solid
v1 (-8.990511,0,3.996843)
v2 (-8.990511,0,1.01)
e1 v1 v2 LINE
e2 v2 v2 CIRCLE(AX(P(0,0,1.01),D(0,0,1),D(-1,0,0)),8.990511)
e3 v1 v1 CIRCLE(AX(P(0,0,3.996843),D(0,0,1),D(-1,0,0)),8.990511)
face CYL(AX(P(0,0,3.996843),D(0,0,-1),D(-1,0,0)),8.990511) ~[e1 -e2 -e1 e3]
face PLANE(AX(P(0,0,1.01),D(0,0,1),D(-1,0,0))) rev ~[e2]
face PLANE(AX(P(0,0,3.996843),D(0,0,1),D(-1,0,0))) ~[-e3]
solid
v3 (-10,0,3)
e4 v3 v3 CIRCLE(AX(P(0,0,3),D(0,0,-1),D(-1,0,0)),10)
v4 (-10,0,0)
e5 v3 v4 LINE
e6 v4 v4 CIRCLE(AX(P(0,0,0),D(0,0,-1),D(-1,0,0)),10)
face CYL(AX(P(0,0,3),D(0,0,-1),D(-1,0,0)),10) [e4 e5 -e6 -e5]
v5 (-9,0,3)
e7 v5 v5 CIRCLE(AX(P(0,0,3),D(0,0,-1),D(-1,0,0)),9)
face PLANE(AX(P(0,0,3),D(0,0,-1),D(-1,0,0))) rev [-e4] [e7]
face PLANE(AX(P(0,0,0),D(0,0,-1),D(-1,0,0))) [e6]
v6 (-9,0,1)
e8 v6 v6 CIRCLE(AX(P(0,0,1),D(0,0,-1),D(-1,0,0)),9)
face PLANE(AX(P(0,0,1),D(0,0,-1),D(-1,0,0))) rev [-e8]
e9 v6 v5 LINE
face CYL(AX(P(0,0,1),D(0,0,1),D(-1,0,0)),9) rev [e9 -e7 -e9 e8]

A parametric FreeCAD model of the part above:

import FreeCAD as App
import Part
import Sketcher
from FreeCAD import Vector


def add_polygon(sketch, points):
    """Adds a closed chain of lines whose ends are joined by coincident constraints."""
    first, n = sketch.GeometryCount, len(points)
    for a, b in zip(points, points[1:] + points[:1]):
        sketch.addGeometry(Part.LineSegment(App.Vector(*a, 0), App.Vector(*b, 0)), False)
    for i in range(n):
        sketch.addConstraint(Sketcher.Constraint("Coincident", first + i, 2, first + (i + 1) % n, 1))

doc = App.newDocument("Part")
body = doc.addObject("PartDesign::Body", "Body")

# Sketch on XZ plane
sketch1 = body.newObject("Sketcher::SketchObject", "Sketch")
sketch1.AttachmentSupport = (doc.getObject("XZ_Plane"), [""])
sketch1.MapMode = "FlatFace"
add_polygon(sketch1, [(0, 4), (-9, 4), (-9, 1), (0, 1)])  # lines 0-3
sketch1.addConstraint(Sketcher.Constraint("Horizontal", 0))
sketch1.addConstraint(Sketcher.Constraint("Vertical", 1))
sketch1.addConstraint(Sketcher.Constraint("Horizontal", 2))
sketch1.addConstraint(Sketcher.Constraint("Vertical", 3))
sketch1.addConstraint(Sketcher.Constraint("PointOnObject", 2, 2, -2))
sketch1.addConstraint(Sketcher.Constraint("DistanceY", -1, 1, 1, 2, 1.01))
sketch1.addConstraint(Sketcher.Constraint("DistanceX", 0, 2, 0, 1, 8.990511))
sketch1.addConstraint(Sketcher.Constraint("DistanceY", 1, 2, 1, 1, 2.986843))
revolution = body.newObject("PartDesign::Revolution", "Revolution")
revolution.Profile = sketch1
revolution.ReferenceAxis = (sketch1, ["V_Axis"])
revolution.Angle = 360
body2 = doc.addObject("PartDesign::Body", "Body001")

# Sketch on XZ plane
sketch2 = body2.newObject("Sketcher::SketchObject", "Sketch001")
sketch2.AttachmentSupport = (doc.getObject("XZ_Plane001"), [""])
sketch2.MapMode = "FlatFace"
add_polygon(sketch2, [(-10, 0), (0, 0), (0, 1), (-9, 1), (-9, 3), (-10, 3)])  # lines 0-5
sketch2.addConstraint(Sketcher.Constraint("Horizontal", 0))
sketch2.addConstraint(Sketcher.Constraint("Vertical", 1))
sketch2.addConstraint(Sketcher.Constraint("Horizontal", 2))
sketch2.addConstraint(Sketcher.Constraint("Vertical", 3))
sketch2.addConstraint(Sketcher.Constraint("Horizontal", 4))
sketch2.addConstraint(Sketcher.Constraint("Vertical", 5))
sketch2.addConstraint(Sketcher.Constraint("Coincident", 0, 2, -1, 1))
sketch2.addConstraint(Sketcher.Constraint("Equal", 4, 1))
sketch2.addConstraint(Sketcher.Constraint("DistanceX", 0, 1, 0, 2, 10.0))
sketch2.addConstraint(Sketcher.Constraint("DistanceX", 2, 2, 2, 1, 9.0))
sketch2.addConstraint(Sketcher.Constraint("DistanceY", 3, 1, 3, 2, 2.0))
revolution2 = body2.newObject("PartDesign::Revolution", "Revolution001")
revolution2.Profile = sketch2
revolution2.ReferenceAxis = (sketch2, ["V_Axis"])
revolution2.Angle = 360

doc.recompute()
